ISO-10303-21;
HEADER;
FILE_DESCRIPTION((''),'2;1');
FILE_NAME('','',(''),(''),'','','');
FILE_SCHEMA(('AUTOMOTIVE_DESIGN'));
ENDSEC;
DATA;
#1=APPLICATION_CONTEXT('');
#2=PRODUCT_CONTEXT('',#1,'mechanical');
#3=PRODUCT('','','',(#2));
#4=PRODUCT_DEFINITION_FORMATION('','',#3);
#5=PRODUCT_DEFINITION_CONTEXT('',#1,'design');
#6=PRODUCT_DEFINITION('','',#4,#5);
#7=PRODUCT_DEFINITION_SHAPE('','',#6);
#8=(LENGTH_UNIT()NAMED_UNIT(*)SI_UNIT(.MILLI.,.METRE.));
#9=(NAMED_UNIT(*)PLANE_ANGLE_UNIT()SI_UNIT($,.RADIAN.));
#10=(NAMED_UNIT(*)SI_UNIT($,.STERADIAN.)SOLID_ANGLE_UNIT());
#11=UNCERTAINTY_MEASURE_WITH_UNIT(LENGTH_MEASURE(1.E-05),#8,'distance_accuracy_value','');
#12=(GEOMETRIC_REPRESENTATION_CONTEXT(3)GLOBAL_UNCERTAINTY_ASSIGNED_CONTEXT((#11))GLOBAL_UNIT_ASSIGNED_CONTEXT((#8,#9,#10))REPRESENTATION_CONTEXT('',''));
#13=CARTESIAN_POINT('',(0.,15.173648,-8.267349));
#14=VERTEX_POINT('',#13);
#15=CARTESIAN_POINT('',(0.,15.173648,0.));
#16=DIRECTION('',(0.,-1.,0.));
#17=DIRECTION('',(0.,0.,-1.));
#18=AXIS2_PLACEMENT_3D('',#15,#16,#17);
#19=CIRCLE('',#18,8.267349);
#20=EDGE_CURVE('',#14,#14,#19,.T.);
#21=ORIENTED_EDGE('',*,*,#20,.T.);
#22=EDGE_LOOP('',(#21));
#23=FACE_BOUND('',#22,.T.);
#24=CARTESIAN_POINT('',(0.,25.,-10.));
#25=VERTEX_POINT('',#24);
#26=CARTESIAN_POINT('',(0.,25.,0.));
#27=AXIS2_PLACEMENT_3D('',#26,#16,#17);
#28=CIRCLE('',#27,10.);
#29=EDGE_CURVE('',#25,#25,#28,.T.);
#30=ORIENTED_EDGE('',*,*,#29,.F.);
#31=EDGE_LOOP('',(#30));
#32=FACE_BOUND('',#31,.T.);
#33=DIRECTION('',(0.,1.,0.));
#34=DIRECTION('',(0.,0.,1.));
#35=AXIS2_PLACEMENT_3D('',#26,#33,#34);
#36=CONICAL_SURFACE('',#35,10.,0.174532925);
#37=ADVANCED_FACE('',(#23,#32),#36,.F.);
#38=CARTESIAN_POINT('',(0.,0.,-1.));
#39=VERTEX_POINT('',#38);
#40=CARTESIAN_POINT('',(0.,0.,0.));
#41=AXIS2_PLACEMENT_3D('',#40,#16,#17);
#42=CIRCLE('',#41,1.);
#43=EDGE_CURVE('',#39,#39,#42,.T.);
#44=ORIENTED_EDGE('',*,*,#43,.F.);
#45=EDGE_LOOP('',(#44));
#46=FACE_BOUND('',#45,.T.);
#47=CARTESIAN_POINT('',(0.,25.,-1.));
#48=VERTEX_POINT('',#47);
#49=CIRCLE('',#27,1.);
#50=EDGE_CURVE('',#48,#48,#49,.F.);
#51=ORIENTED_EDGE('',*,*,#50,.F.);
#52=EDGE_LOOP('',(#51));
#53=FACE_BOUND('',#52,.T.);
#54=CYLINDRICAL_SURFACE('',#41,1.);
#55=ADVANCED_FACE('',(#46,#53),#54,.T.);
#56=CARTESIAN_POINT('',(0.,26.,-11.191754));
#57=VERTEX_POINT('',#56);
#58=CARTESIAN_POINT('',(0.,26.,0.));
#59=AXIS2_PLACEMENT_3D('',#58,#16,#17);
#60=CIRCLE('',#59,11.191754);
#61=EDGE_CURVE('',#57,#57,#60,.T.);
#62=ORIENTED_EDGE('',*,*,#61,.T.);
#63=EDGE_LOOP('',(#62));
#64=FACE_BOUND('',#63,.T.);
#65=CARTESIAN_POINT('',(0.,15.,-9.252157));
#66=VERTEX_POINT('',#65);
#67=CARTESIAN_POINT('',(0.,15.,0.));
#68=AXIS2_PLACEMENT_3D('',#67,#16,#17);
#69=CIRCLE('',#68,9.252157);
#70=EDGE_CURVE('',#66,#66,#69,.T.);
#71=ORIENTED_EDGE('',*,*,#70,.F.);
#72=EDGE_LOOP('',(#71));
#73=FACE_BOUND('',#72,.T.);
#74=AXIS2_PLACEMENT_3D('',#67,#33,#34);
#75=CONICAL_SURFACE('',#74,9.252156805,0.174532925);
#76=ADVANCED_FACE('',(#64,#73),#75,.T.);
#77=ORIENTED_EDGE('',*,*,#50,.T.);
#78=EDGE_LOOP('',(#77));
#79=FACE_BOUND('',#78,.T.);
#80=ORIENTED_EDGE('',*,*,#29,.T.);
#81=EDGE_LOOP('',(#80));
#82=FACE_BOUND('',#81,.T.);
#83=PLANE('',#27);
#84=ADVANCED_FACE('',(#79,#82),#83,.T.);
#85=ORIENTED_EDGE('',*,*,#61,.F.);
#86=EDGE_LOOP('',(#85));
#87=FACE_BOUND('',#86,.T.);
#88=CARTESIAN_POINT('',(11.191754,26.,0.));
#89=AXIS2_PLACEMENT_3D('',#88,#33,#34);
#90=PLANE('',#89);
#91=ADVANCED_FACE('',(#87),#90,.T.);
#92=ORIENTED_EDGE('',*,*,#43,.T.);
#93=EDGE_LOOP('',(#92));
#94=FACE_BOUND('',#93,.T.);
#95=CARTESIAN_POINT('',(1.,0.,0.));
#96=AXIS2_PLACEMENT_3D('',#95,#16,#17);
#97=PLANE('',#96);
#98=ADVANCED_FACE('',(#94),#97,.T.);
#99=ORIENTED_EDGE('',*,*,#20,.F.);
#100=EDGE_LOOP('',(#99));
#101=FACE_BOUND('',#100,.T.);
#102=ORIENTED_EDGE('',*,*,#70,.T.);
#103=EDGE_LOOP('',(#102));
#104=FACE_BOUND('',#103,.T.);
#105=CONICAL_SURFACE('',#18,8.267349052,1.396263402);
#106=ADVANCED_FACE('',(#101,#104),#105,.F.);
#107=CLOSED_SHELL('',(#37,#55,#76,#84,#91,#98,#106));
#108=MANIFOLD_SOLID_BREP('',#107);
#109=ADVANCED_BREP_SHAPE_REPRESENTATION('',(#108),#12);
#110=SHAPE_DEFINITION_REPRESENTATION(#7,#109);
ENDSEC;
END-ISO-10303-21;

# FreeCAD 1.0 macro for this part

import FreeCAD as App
import Part
import Sketcher
from FreeCAD import Vector
Q = App.Units.Quantity


def add_polygon(sketch, points):
    """Adds a closed chain of lines whose ends are joined by coincident constraints."""
    first, n = sketch.GeometryCount, len(points)
    for a, b in zip(points, points[1:] + points[:1]):
        sketch.addGeometry(Part.LineSegment(App.Vector(*a, 0), App.Vector(*b, 0)), False)
    for i in range(n):
        sketch.addConstraint(Sketcher.Constraint("Coincident", first + i, 2, first + (i + 1) % n, 1))

doc = App.newDocument("Part")
body = doc.addObject("PartDesign::Body", "Body")

# Sketch on XY plane
sketch1 = doc.addObject("Sketcher::SketchObject", "Sketch")
body.addObject(sketch1)
sketch1.AttachmentSupport = (doc.XY_Plane, [""])
sketch1.MapMode = "FlatFace"
add_polygon(sketch1, [(0, 25), (0, 0), (1, 0), (1, 25)])  # lines 0-3
sketch1.addConstraint([
    Sketcher.Constraint("Vertical", 0),
    Sketcher.Constraint("Horizontal", 1),
    Sketcher.Constraint("Vertical", 2),
    Sketcher.Constraint("Horizontal", 3),
    Sketcher.Constraint("Coincident", 0, 2, -1, 1),
    Sketcher.Constraint("DistanceX", 1, 1, 1, 2, 1.0),
    Sketcher.Constraint("DistanceY", 0, 2, 0, 1, 25.0),
])
revolution = doc.addObject("PartDesign::Revolution", "Revolution")
body.addObject(revolution)
revolution.Profile = sketch1
revolution.ReferenceAxis = (sketch1, ["V_Axis"])
revolution.Angle = 360

# Sketch on XY plane
sketch2 = doc.addObject("Sketcher::SketchObject", "Sketch001")
body.addObject(sketch2)
sketch2.AttachmentSupport = (doc.XY_Plane, [""])
sketch2.MapMode = "FlatFace"
add_polygon(sketch2, [(0, 25), (10, 25), (8.267349, 15.173648), (9.252157, 15), (11.191754, 26), (0, 26)])  # lines 0-5
sketch2.addConstraint([
    Sketcher.Constraint("Horizontal", 0),
    Sketcher.Constraint("Horizontal", 4),
    Sketcher.Constraint("Vertical", 5),
    Sketcher.Constraint("PointOnObject", 4, 2, -2),
    Sketcher.Constraint("Perpendicular", 1, 2),
    Sketcher.Constraint("Perpendicular", 2, 3),
    Sketcher.Constraint("DistanceX", 0, 1, 0, 2, 10.0),
    Sketcher.Constraint("DistanceY", 5, 2, 5, 1, 1.0),
    Sketcher.Constraint("Angle", 1, Q("-100 deg")),
    Sketcher.Constraint("Distance", 2, 1.0),
    Sketcher.Constraint("DistanceY", -1, 1, 0, 2, 25.0),
    Sketcher.Constraint("DistanceY", -1, 1, 2, 2, 15.0),
])
revolution2 = doc.addObject("PartDesign::Revolution", "Revolution001")
body.addObject(revolution2)
revolution2.Profile = sketch2
revolution2.ReferenceAxis = (sketch2, ["V_Axis"])
revolution2.Angle = 360

doc.recompute()
